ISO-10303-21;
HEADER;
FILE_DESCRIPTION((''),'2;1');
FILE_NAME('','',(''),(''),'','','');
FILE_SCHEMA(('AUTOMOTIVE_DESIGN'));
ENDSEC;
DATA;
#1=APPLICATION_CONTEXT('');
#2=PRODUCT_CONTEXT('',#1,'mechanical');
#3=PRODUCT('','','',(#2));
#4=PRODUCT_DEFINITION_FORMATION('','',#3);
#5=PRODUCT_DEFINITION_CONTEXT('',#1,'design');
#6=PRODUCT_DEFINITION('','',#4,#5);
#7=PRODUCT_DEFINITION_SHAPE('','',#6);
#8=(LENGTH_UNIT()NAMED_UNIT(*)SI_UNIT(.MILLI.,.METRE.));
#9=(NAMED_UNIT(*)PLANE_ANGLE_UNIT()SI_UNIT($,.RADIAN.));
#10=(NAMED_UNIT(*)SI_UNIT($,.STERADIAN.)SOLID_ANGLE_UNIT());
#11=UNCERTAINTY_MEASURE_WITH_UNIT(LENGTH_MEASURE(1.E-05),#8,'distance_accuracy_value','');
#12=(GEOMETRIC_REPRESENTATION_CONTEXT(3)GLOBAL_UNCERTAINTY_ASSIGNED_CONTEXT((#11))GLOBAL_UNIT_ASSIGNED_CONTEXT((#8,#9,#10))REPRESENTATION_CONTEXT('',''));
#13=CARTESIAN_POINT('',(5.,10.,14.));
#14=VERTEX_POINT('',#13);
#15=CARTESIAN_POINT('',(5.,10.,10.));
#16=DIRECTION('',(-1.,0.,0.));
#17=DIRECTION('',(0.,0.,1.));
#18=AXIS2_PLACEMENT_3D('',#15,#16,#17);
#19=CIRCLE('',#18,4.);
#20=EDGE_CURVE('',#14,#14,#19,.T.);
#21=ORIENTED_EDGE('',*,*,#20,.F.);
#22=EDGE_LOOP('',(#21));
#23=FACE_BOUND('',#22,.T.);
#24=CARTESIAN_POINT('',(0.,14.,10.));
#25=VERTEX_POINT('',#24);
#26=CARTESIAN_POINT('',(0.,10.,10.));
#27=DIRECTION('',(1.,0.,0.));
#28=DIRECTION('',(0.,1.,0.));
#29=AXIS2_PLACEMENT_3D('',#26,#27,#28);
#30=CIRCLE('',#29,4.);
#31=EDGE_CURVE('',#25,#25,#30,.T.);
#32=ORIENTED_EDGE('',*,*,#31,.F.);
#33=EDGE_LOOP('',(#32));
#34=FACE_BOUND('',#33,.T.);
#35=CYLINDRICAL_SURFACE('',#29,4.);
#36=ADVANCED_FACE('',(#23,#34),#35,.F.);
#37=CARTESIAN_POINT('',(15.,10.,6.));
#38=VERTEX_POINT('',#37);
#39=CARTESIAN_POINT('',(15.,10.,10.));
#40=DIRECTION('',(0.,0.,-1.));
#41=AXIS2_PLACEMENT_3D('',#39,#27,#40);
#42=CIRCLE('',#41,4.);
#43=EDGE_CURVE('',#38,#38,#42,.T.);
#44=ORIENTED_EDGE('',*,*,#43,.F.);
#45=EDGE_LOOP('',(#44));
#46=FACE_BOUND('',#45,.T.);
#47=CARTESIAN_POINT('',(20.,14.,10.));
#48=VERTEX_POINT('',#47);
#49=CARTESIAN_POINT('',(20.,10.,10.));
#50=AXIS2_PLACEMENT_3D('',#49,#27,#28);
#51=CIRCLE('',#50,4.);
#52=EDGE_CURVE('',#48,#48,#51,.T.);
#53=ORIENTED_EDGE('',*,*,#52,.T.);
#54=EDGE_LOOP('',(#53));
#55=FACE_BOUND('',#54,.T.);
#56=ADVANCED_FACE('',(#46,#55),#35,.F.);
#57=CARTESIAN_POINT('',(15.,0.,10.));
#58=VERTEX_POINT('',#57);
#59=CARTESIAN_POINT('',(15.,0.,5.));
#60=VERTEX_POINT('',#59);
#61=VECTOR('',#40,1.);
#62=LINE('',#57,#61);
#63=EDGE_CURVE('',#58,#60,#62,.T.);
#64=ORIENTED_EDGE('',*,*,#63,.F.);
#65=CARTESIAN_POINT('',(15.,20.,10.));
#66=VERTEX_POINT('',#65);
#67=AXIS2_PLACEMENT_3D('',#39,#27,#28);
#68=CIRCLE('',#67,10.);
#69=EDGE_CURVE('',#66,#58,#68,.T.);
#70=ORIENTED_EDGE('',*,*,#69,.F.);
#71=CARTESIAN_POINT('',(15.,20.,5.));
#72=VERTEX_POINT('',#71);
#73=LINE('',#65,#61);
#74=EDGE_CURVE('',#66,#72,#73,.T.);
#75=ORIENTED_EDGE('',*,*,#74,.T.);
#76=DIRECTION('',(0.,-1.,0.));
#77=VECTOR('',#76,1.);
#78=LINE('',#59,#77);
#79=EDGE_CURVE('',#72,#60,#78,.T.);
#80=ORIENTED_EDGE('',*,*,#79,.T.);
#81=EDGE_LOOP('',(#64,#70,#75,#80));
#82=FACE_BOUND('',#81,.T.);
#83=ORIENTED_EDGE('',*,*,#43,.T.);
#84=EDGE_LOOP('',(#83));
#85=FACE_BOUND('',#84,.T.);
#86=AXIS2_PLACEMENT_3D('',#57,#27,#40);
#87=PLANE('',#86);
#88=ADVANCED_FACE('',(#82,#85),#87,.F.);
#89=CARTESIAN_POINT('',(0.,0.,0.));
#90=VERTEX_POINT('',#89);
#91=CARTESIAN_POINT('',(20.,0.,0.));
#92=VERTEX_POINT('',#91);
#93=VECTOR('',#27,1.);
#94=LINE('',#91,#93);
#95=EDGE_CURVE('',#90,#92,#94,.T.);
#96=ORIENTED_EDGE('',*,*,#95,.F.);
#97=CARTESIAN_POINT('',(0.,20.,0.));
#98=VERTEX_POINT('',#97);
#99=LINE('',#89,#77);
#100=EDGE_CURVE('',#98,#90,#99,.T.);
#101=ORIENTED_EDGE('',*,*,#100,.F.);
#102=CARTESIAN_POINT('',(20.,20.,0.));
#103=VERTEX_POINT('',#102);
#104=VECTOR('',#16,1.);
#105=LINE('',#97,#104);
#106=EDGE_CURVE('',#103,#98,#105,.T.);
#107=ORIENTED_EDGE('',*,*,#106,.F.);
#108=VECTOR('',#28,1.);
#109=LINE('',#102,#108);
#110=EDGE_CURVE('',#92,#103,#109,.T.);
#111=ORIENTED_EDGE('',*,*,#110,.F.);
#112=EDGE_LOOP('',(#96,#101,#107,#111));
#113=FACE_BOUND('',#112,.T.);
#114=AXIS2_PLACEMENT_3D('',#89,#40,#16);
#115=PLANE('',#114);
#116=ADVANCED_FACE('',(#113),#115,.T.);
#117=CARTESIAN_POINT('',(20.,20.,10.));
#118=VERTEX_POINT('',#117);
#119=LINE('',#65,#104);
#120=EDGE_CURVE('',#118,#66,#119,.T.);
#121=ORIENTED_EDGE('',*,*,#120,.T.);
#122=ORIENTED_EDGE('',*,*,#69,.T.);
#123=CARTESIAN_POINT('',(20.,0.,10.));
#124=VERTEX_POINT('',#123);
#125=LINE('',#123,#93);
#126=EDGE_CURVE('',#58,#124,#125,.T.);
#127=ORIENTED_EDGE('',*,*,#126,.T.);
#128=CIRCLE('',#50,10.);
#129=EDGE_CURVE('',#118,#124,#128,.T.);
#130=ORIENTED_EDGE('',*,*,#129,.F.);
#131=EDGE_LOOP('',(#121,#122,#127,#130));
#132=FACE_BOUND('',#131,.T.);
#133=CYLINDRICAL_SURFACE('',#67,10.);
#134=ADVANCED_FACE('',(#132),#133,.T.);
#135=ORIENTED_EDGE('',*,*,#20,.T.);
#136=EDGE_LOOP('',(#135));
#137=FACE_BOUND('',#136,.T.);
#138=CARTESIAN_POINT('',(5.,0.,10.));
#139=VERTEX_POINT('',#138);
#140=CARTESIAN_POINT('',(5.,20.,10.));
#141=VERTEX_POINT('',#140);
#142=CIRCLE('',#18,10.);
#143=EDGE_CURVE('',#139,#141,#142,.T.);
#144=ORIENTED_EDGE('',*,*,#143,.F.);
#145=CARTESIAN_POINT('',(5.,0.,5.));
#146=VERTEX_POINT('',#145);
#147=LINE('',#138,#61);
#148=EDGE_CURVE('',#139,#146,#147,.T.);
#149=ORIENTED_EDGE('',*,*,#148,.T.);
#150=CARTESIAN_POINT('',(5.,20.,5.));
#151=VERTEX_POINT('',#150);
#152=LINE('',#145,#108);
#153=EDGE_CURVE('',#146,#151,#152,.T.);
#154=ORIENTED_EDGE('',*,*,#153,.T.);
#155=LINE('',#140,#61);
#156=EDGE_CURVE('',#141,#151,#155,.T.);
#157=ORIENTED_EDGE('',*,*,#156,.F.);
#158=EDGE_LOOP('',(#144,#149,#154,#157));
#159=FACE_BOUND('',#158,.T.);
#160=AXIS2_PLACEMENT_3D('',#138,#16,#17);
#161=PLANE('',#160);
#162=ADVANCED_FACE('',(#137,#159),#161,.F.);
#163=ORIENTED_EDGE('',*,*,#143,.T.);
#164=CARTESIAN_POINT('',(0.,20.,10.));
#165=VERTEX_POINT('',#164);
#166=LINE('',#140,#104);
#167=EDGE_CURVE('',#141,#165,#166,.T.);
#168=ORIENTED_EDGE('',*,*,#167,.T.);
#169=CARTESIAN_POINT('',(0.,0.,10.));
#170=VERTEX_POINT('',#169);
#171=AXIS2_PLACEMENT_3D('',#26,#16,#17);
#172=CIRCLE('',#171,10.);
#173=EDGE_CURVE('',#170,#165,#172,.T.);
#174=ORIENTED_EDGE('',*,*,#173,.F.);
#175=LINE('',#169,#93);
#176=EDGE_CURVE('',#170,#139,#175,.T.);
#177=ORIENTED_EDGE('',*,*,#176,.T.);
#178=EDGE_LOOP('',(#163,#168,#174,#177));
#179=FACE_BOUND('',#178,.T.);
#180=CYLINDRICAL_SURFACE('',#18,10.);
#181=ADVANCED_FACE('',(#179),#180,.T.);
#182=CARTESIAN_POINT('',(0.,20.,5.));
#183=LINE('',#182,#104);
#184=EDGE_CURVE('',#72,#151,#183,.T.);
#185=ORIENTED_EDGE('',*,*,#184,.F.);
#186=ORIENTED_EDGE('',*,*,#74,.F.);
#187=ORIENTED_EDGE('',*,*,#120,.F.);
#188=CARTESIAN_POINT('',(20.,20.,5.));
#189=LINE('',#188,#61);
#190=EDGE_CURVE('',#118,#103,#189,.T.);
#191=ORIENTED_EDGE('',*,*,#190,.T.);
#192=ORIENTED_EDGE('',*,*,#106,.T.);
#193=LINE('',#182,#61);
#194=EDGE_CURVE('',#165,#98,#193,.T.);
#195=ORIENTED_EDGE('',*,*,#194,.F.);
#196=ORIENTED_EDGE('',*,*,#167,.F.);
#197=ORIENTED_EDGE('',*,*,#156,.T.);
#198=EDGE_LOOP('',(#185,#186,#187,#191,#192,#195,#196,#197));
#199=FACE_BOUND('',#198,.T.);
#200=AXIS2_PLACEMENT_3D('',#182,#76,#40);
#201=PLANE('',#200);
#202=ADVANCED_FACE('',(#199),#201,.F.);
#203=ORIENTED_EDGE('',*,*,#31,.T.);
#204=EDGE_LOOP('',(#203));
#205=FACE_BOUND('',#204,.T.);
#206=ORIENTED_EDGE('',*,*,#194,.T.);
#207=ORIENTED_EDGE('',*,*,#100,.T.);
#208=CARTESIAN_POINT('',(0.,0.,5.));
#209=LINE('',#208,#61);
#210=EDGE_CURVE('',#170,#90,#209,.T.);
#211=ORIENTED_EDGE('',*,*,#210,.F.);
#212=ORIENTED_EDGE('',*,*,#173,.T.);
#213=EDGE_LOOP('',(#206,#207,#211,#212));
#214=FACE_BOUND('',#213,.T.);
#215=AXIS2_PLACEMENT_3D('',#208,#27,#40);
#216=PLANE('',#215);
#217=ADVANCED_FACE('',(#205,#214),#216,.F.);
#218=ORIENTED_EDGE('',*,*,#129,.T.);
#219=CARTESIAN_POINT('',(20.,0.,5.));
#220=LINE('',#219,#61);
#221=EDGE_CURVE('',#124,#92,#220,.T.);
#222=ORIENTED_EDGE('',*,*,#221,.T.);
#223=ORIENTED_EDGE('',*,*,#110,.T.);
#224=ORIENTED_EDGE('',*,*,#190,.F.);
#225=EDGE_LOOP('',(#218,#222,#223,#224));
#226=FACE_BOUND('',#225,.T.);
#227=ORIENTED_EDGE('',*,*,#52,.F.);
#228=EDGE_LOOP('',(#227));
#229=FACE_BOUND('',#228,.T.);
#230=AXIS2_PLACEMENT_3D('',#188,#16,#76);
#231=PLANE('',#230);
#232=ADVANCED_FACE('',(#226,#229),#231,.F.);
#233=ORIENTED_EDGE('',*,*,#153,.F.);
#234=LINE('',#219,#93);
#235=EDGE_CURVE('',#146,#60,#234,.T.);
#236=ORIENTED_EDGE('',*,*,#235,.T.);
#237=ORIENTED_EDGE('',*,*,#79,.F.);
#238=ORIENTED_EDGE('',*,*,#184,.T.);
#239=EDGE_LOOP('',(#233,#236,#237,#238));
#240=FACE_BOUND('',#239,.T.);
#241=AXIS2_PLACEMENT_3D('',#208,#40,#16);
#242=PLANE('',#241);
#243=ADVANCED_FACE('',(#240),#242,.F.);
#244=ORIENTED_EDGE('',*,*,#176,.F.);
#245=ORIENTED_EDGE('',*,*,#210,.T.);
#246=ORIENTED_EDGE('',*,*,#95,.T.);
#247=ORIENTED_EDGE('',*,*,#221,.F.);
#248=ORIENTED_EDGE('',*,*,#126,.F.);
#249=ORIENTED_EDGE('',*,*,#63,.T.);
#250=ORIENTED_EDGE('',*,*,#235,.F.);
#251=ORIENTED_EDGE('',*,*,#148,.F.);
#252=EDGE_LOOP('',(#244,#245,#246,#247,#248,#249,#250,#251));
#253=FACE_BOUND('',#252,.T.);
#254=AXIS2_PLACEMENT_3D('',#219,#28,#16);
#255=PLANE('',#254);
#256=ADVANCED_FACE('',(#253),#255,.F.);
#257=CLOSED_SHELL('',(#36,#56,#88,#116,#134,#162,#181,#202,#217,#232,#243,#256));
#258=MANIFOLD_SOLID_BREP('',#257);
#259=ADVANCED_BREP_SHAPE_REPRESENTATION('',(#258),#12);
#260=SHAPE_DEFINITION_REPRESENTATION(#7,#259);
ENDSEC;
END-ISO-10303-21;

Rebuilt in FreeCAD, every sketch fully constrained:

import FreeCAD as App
import Part
import Sketcher
from FreeCAD import Vector


def add_polygon(sketch, points):
    """Adds a closed chain of lines whose ends are joined by coincident constraints."""
    first, n = sketch.GeometryCount, len(points)
    for a, b in zip(points, points[1:] + points[:1]):
        sketch.addGeometry(Part.LineSegment(App.Vector(*a, 0), App.Vector(*b, 0)), False)
    for i in range(n):
        sketch.addConstraint(Sketcher.Constraint("Coincident", first + i, 2, first + (i + 1) % n, 1))

doc = App.newDocument("Part")
body = doc.addObject("PartDesign::Body", "Body")

# Sketch on XY plane
sketch1 = body.newObject("Sketcher::SketchObject", "Sketch")
sketch1.AttachmentSupport = (doc.getObject("XY_Plane"), [""])
sketch1.MapMode = "FlatFace"
add_polygon(sketch1, [(0, 20), (0, 0), (20, 0), (20, 20)])  # lines 0-3
sketch1.addConstraint(Sketcher.Constraint("Vertical", 0))
sketch1.addConstraint(Sketcher.Constraint("Horizontal", 1))
sketch1.addConstraint(Sketcher.Constraint("Vertical", 2))
sketch1.addConstraint(Sketcher.Constraint("Horizontal", 3))
sketch1.addConstraint(Sketcher.Constraint("Coincident", 0, 2, -1, 1))
sketch1.addConstraint(Sketcher.Constraint("Equal", 3, 0))
sketch1.addConstraint(Sketcher.Constraint("DistanceX", 1, 1, 1, 2, 20.0))
pad1 = body.newObject("PartDesign::Pad", "Pad")
pad1.Profile = sketch1
pad1.Length = 5

# Sketch on XY plane
sketch2 = body.newObject("Sketcher::SketchObject", "Sketch001")
sketch2.AttachmentSupport = (doc.getObject("XY_Plane"), [""])
sketch2.MapMode = "FlatFace"
sketch2.AttachmentOffset = App.Placement(Vector(0, 0, 5), App.Rotation())
add_polygon(sketch2, [(0, 20), (0, 0), (5, 0), (5, 20)])  # lines 0-3
add_polygon(sketch2, [(15, 20), (15, 0), (20, 0), (20, 20)])  # lines 4-7
sketch2.addConstraint(Sketcher.Constraint("Vertical", 0))
sketch2.addConstraint(Sketcher.Constraint("Horizontal", 1))
sketch2.addConstraint(Sketcher.Constraint("Vertical", 2))
sketch2.addConstraint(Sketcher.Constraint("Horizontal", 3))
sketch2.addConstraint(Sketcher.Constraint("Vertical", 4))
sketch2.addConstraint(Sketcher.Constraint("Horizontal", 5))
sketch2.addConstraint(Sketcher.Constraint("Vertical", 6))
sketch2.addConstraint(Sketcher.Constraint("Horizontal", 7))
sketch2.addConstraint(Sketcher.Constraint("Coincident", 0, 2, -1, 1))
sketch2.addConstraint(Sketcher.Constraint("PointOnObject", 4, 2, -1))
sketch2.addConstraint(Sketcher.Constraint("Horizontal", 3, 2, 6, 2))
sketch2.addConstraint(Sketcher.Constraint("Equal", 3, 5))
sketch2.addConstraint(Sketcher.Constraint("DistanceX", 1, 1, 1, 2, 5.0))
sketch2.addConstraint(Sketcher.Constraint("DistanceY", 0, 2, 0, 1, 20.0))
sketch2.addConstraint(Sketcher.Constraint("DistanceX", -1, 1, 4, 2, 15.0))
pad2 = body.newObject("PartDesign::Pad", "Pad001")
pad2.Profile = sketch2
pad2.Length = 5

# Sketch on YZ plane
sketch3 = body.newObject("Sketcher::SketchObject", "Sketch002")
sketch3.AttachmentSupport = (doc.getObject("YZ_Plane"), [""])
sketch3.MapMode = "FlatFace"
sketch3.AttachmentOffset = App.Placement(Vector(0, 0, 20), App.Rotation())
sketch3.addGeometry(Part.Circle(Vector(10, 10, 0), Vector(0, 0, 1), 10), False)
sketch3.addConstraint(Sketcher.Constraint("Diameter", 0, 20.0))
sketch3.addConstraint(Sketcher.Constraint("DistanceX", -1, 1, 0, 3, 10.0))
sketch3.addConstraint(Sketcher.Constraint("DistanceY", -1, 1, 0, 3, 10.0))
pad3 = body.newObject("PartDesign::Pad", "Pad002")
pad3.Profile = sketch3
pad3.Length = 5
pad3.Reversed = True

# Sketch on YZ plane
sketch4 = body.newObject("Sketcher::SketchObject", "Sketch003")
sketch4.AttachmentSupport = (doc.getObject("YZ_Plane"), [""])
sketch4.MapMode = "FlatFace"
sketch4.addGeometry(Part.Circle(Vector(10, 10, 0), Vector(0, 0, 1), 10), False)
sketch4.addConstraint(Sketcher.Constraint("Diameter", 0, 20.0))
sketch4.addConstraint(Sketcher.Constraint("DistanceX", -1, 1, 0, 3, 10.0))
sketch4.addConstraint(Sketcher.Constraint("DistanceY", -1, 1, 0, 3, 10.0))
pad4 = body.newObject("PartDesign::Pad", "Pad003")
pad4.Profile = sketch4
pad4.Length = 5

# Sketch on YZ plane
sketch5 = body.newObject("Sketcher::SketchObject", "Sketch004")
sketch5.AttachmentSupport = (doc.getObject("YZ_Plane"), [""])
sketch5.MapMode = "FlatFace"
sketch5.AttachmentOffset = App.Placement(Vector(0, 0, 20), App.Rotation())
sketch5.addGeometry(Part.Circle(Vector(10, 10, 0), Vector(0, 0, 1), 4), False)
sketch5.addConstraint(Sketcher.Constraint("Diameter", 0, 8.0))
sketch5.addConstraint(Sketcher.Constraint("DistanceX", -1, 1, 0, 3, 10.0))
sketch5.addConstraint(Sketcher.Constraint("DistanceY", -1, 1, 0, 3, 10.0))
pocket1 = body.newObject("PartDesign::Pocket", "Pocket")
pocket1.Profile = sketch5
pocket1.Type = "ThroughAll"

doc.recompute()
